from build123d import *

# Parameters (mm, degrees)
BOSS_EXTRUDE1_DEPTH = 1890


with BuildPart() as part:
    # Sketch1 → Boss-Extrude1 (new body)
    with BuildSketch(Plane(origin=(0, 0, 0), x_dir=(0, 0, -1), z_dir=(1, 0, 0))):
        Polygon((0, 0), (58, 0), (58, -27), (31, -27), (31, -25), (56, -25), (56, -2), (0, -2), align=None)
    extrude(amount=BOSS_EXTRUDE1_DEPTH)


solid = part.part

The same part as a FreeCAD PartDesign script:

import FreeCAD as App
import Part
import Sketcher
Q = App.Units.Quantity

doc = App.newDocument("Part")
body = doc.addObject("PartDesign::Body", "Body")

# Sketch on YZ plane
sketch1 = body.newObject("Sketcher::SketchObject", "Sketch")
sketch1.AttachmentSupport = (doc.getObject("YZ_Plane"), [""])
sketch1.MapMode = "FlatFace"
sketch1.addGeometry([
    Part.LineSegment(App.Vector(0, -58, 0), App.Vector(0, 0, 0)),  # 0
    Part.LineSegment(App.Vector(0, 0, 0), App.Vector(-2, 0, 0)),  # 1
    Part.LineSegment(App.Vector(-2, 0, 0), App.Vector(-2, -56, 0)),  # 2
    Part.LineSegment(App.Vector(-2, -56, 0), App.Vector(-25, -56, 0)),  # 3
    Part.LineSegment(App.Vector(-25, -56, 0), App.Vector(-25, -31, 0)),  # 4
    Part.LineSegment(App.Vector(-25, -31, 0), App.Vector(-27, -31, 0)),  # 5
    Part.LineSegment(App.Vector(-27, -31, 0), App.Vector(-27, -58, 0)),  # 6
    Part.LineSegment(App.Vector(-27, -58, 0), App.Vector(0, -58, 0)),  # 7
], False)
sketch1.addConstraint([
    Sketcher.Constraint("Coincident", 0, 2, 1, 1),
    Sketcher.Constraint("Coincident", 1, 2, 2, 1),
    Sketcher.Constraint("Coincident", 2, 2, 3, 1),
    Sketcher.Constraint("Coincident", 3, 2, 4, 1),
    Sketcher.Constraint("Coincident", 4, 2, 5, 1),
    Sketcher.Constraint("Coincident", 5, 2, 6, 1),
    Sketcher.Constraint("Coincident", 6, 2, 7, 1),
    Sketcher.Constraint("Coincident", 7, 2, 0, 1),
    Sketcher.Constraint("Vertical", 0),
    Sketcher.Constraint("Horizontal", 1),
    Sketcher.Constraint("Vertical", 2),
    Sketcher.Constraint("Horizontal", 3),
    Sketcher.Constraint("Vertical", 4),
    Sketcher.Constraint("Horizontal", 5),
    Sketcher.Constraint("Vertical", 6),
    Sketcher.Constraint("Horizontal", 7),
    Sketcher.Constraint("Coincident", 0, 2, -1, 1),
    Sketcher.Constraint("Equal", 1, 5),
    Sketcher.Constraint("Equal", 7, 6),
    Sketcher.Constraint("DistanceX", 1, 2, 1, 1, Q("2 mm")),
    Sketcher.Constraint("DistanceX", 3, 2, 3, 1, Q("23 mm")),
    Sketcher.Constraint("DistanceY", 0, 1, 0, 2, Q("58 mm")),
    Sketcher.Constraint("DistanceY", 2, 2, 2, 1, Q("56 mm")),
])
pad1 = body.newObject("PartDesign::Pad", "Pad")
pad1.Profile = sketch1
pad1.Length = 1890

doc.recompute()
